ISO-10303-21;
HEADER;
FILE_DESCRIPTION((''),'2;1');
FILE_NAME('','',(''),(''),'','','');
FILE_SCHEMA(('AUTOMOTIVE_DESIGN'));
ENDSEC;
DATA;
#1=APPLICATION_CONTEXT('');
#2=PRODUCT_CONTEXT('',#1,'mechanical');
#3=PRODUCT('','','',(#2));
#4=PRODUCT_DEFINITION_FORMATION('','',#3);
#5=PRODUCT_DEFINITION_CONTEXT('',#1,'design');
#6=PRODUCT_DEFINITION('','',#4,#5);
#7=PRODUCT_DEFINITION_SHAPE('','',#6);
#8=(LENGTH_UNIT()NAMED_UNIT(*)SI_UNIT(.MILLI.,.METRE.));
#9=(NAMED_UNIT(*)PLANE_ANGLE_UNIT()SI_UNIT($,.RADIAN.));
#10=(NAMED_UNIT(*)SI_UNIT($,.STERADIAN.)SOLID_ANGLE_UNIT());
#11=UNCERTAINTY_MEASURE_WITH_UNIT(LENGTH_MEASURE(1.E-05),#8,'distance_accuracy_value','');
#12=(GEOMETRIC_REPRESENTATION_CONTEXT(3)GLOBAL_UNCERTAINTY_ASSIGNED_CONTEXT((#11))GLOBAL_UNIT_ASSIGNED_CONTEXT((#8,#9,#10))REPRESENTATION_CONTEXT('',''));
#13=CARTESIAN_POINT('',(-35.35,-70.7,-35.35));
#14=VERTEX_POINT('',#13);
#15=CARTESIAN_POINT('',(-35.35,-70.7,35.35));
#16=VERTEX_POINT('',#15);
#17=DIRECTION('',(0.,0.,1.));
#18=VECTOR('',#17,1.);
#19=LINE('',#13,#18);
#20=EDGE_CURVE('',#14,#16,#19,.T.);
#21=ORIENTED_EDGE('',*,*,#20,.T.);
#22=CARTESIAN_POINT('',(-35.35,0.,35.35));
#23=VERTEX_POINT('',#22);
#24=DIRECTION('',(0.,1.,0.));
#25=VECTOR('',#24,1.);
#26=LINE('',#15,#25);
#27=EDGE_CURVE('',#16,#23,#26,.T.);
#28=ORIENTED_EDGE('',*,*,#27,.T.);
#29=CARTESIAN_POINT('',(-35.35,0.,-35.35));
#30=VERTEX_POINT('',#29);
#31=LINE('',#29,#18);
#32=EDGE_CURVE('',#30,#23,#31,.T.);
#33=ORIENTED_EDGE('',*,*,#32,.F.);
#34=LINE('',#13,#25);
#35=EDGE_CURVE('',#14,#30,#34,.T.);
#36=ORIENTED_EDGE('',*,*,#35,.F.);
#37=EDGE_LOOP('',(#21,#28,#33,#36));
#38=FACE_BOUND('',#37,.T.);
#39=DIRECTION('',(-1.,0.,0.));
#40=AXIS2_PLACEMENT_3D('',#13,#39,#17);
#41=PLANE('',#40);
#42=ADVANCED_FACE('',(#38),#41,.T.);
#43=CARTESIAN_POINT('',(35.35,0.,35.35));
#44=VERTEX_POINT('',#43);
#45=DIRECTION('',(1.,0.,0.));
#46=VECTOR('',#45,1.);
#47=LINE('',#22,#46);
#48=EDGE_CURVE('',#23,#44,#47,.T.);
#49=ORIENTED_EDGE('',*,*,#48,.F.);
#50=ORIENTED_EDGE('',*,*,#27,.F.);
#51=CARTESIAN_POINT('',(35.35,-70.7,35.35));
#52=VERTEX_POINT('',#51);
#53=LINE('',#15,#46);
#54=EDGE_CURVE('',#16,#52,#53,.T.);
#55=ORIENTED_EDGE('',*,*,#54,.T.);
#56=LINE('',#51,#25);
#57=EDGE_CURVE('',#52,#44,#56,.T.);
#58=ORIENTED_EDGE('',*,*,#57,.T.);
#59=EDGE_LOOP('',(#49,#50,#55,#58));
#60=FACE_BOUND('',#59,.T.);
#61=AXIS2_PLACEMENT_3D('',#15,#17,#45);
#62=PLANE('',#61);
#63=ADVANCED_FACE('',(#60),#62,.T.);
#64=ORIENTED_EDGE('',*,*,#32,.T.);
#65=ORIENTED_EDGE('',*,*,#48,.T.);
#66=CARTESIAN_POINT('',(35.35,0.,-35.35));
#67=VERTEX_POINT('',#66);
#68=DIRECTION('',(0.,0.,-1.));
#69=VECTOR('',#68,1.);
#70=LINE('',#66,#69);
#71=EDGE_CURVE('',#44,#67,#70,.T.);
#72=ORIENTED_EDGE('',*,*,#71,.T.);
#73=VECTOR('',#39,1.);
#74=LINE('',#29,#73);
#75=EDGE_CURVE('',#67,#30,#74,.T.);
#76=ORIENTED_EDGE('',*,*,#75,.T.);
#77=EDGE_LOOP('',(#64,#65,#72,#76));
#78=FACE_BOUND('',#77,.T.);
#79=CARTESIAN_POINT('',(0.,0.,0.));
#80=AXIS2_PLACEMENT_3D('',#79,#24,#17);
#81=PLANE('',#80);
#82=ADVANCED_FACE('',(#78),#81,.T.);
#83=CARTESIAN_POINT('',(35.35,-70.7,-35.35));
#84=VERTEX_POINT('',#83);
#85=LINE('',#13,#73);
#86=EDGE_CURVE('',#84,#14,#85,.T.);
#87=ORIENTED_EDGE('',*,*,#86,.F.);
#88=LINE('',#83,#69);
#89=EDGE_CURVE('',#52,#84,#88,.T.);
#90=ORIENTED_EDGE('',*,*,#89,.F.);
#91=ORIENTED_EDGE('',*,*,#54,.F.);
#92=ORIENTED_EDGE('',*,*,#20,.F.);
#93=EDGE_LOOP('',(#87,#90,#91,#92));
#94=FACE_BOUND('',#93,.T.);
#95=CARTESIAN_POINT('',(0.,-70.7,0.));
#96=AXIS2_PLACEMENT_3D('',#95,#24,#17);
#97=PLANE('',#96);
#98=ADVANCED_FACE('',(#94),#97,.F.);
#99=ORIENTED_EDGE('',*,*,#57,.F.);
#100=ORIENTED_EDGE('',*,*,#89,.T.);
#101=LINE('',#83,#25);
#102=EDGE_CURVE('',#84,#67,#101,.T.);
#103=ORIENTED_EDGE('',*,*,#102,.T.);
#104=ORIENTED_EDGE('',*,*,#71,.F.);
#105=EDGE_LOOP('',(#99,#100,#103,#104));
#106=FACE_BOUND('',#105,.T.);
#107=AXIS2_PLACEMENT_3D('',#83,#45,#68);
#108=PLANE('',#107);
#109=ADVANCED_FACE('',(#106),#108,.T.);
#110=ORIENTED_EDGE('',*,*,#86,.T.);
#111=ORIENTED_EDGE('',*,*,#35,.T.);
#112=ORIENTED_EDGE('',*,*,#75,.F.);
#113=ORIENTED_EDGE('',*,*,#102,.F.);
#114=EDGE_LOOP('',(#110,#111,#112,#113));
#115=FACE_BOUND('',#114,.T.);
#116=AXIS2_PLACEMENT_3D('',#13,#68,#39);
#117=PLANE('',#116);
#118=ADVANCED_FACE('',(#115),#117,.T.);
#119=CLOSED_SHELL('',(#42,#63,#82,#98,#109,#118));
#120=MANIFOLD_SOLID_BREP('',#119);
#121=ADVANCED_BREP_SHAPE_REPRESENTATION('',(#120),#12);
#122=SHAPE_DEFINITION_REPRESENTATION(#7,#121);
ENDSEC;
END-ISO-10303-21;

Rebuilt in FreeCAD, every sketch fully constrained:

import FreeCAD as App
import Part
import Sketcher
from FreeCAD import Vector


def add_polygon(sketch, points):
    """Adds a closed chain of lines whose ends are joined by coincident constraints."""
    first, n = sketch.GeometryCount, len(points)
    for a, b in zip(points, points[1:] + points[:1]):
        sketch.addGeometry(Part.LineSegment(App.Vector(*a, 0), App.Vector(*b, 0)), False)
    for i in range(n):
        sketch.addConstraint(Sketcher.Constraint("Coincident", first + i, 2, first + (i + 1) % n, 1))

doc = App.newDocument("Part")
params = doc.addObject("Spreadsheet::Sheet", "Params")
for row, (alias, value) in enumerate([
    ("sketch1_width", "70.7 mm"),
    ("pad1_length", "70.7 mm"),
], start=1):
    params.set(f"A{row}", alias)
    params.set(f"B{row}", "=" + value)
    params.setAlias(f"B{row}", alias)

body = doc.addObject("PartDesign::Body", "Body")

# Sketch on XZ plane
sketch1 = doc.addObject("Sketcher::SketchObject", "Sketch")
body.addObject(sketch1)
sketch1.AttachmentSupport = (doc.XZ_Plane, [""])
sketch1.MapMode = "FlatFace"
add_polygon(sketch1, [(-35, -35), (-35, 35), (35, 35), (35, -35)])  # lines 0-3
sketch1.addConstraint([
    Sketcher.Constraint("Vertical", 0),
    Sketcher.Constraint("Horizontal", 1),
    Sketcher.Constraint("Vertical", 2),
    Sketcher.Constraint("Horizontal", 3),
    Sketcher.Constraint("Symmetric", 0, 2, 2, 2, -1, 1),
    Sketcher.Constraint("Equal", 3, 0),
    Sketcher.Constraint("DistanceX", 1, 1, 1, 2, 70.7),
])
sketch1.setExpression("Constraints[10]", "Params.sketch1_width")
pad1 = doc.addObject("PartDesign::Pad", "Pad")
body.addObject(pad1)
pad1.Profile = sketch1
pad1.setExpression("Length", "Params.pad1_length")

doc.recompute()
